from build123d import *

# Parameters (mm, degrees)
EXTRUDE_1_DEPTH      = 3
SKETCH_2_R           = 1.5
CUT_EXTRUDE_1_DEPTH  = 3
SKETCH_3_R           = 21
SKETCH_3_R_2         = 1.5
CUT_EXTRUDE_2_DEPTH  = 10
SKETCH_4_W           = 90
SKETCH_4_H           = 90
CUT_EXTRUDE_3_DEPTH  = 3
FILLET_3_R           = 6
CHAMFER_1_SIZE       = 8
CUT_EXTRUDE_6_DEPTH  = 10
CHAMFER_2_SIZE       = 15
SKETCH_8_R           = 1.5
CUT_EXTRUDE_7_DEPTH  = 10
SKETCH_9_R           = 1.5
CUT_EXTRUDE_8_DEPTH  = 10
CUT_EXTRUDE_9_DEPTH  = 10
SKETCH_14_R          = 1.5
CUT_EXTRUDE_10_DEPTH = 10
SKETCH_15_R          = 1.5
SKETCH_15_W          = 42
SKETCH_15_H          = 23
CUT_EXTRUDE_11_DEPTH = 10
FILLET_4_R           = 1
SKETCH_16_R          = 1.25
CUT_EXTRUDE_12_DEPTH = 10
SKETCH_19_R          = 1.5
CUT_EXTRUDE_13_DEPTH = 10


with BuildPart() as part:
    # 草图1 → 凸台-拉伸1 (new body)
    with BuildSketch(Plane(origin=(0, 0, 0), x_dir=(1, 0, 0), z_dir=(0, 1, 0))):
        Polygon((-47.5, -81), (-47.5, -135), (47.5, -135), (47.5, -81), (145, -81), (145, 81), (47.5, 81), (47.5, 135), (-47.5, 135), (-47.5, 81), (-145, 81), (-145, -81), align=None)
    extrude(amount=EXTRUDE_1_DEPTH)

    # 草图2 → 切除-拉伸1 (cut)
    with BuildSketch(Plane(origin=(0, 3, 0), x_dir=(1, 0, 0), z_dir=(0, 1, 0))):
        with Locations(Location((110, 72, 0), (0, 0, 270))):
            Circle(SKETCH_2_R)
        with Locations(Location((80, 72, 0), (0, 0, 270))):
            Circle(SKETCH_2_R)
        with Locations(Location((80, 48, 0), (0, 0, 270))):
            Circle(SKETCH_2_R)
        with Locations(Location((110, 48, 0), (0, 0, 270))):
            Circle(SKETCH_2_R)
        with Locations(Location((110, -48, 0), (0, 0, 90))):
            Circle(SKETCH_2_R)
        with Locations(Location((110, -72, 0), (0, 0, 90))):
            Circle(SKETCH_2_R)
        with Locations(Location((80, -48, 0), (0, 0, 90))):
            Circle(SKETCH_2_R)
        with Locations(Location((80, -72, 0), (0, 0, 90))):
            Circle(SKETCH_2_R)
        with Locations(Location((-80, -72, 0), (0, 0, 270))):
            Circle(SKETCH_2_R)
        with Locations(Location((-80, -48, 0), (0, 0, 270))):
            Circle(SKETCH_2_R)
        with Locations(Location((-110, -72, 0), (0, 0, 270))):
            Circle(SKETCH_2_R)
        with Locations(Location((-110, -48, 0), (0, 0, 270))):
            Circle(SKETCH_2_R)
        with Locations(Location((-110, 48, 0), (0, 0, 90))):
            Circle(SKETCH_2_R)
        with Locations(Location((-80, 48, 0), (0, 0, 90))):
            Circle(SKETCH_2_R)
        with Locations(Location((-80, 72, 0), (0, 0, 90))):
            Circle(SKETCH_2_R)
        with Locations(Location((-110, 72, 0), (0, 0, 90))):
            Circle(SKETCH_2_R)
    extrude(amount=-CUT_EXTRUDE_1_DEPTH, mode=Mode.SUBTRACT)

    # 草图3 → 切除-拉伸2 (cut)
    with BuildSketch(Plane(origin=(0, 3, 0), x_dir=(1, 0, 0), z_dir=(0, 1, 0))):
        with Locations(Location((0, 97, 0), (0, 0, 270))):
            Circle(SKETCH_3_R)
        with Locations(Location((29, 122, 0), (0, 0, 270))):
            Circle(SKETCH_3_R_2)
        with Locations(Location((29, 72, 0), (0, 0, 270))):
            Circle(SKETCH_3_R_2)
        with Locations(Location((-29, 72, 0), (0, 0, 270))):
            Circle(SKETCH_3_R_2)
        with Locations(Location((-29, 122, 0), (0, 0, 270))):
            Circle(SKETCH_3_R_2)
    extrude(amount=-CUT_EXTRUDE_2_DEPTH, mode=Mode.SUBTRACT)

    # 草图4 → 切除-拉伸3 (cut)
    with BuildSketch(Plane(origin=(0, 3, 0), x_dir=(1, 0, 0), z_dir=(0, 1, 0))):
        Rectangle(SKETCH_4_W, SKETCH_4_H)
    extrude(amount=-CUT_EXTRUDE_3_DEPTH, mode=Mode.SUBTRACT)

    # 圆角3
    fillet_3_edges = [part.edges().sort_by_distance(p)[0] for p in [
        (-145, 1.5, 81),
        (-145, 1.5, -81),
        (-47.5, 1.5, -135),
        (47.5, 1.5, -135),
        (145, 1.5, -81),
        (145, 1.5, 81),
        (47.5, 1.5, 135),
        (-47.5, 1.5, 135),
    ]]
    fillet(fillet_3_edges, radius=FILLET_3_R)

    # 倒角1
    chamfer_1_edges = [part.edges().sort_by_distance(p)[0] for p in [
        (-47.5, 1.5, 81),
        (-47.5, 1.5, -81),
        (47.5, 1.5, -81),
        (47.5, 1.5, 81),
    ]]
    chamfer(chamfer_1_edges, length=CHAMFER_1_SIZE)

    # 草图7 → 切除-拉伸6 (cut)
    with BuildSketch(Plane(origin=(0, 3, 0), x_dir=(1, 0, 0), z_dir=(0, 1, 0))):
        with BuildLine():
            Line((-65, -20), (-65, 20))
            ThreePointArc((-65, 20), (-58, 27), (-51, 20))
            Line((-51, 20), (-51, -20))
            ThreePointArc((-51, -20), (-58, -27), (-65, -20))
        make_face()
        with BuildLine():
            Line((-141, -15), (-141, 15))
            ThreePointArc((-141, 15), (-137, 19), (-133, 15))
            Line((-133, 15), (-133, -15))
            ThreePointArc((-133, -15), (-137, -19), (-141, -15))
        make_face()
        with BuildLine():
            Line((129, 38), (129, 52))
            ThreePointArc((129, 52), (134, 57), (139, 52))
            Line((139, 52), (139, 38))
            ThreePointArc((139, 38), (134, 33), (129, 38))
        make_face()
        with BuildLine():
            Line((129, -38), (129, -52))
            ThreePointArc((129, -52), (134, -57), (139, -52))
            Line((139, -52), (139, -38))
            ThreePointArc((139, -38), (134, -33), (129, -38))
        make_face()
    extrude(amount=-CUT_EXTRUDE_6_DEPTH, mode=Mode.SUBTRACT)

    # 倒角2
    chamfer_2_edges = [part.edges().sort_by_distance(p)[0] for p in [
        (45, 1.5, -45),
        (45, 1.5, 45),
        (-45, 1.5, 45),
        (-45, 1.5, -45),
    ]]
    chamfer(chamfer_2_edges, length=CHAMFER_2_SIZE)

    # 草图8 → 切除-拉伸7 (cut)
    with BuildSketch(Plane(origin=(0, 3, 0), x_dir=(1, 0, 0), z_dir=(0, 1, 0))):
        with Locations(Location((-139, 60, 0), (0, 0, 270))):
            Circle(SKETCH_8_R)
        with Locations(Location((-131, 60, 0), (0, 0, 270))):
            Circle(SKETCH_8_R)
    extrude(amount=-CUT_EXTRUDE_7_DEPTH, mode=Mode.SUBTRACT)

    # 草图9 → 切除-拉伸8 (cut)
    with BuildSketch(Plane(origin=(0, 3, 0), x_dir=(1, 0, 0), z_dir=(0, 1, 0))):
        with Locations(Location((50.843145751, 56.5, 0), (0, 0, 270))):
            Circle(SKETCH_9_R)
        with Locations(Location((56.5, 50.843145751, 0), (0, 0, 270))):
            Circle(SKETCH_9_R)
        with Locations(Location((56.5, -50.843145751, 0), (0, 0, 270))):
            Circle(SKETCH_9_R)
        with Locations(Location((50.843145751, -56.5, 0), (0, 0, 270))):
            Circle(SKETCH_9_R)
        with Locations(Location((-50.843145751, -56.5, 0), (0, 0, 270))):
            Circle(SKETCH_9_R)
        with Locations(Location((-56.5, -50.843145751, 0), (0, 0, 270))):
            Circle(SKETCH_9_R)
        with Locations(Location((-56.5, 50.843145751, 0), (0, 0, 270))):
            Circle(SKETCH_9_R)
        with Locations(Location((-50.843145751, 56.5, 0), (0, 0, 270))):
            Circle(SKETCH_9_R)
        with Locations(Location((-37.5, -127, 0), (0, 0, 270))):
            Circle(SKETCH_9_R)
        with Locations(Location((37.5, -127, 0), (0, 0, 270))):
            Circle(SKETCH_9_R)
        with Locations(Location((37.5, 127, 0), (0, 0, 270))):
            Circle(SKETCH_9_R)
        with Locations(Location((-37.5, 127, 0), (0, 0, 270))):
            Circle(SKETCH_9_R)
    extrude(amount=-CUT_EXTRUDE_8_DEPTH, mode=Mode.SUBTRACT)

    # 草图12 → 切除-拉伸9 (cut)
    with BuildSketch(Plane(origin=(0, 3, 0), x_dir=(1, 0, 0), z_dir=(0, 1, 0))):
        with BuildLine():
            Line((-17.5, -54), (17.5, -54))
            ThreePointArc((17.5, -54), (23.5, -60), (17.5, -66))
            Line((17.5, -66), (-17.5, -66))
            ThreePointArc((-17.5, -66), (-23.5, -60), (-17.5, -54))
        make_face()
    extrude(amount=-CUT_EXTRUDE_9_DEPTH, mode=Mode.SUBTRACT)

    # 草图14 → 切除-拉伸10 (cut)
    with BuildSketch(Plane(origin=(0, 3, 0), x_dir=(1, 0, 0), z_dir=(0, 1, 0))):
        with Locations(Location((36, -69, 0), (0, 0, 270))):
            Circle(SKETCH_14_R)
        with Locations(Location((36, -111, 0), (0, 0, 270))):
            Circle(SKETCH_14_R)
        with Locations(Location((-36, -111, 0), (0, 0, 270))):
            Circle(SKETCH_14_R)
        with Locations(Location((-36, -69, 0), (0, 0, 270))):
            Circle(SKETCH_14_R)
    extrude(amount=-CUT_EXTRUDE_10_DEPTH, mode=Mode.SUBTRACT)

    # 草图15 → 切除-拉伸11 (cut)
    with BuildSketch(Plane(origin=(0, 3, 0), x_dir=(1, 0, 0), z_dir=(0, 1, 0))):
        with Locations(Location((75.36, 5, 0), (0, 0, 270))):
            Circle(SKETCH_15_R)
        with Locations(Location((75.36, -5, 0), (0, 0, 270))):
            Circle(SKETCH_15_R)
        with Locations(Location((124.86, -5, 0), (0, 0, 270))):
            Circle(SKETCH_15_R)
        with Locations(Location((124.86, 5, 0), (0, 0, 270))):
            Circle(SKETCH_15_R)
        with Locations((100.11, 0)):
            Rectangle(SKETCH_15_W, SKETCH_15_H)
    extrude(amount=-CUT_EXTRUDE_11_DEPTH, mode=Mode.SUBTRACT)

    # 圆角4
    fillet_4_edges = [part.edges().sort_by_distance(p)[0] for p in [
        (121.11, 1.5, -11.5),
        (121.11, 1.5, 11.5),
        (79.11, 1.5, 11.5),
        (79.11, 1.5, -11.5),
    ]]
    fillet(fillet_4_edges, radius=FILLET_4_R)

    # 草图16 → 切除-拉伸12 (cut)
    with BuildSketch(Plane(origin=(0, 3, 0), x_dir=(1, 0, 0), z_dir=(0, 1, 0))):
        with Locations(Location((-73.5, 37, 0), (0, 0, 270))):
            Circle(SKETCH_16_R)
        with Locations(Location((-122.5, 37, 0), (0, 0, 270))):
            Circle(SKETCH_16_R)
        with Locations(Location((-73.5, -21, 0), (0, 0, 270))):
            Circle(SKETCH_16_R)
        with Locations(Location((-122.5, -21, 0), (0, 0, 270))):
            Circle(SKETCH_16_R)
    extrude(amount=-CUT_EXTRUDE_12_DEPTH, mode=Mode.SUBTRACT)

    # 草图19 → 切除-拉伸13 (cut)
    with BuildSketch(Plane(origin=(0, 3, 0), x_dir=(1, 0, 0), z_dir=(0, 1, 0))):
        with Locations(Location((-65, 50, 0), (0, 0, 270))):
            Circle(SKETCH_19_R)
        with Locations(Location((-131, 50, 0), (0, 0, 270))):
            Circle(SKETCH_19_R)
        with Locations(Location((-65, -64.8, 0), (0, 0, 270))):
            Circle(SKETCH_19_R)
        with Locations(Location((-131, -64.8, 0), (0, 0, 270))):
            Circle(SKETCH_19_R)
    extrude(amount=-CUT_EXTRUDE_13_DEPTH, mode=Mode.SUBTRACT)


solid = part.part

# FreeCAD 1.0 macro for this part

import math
import FreeCAD as App
import Part
import Sketcher
from FreeCAD import Vector
Q = App.Units.Quantity


def edges_at(feature, points):
    """Names of the edges that pass closest to the given points."""
    edges = feature.Shape.Edges
    near = lambda p: min(range(len(edges)), key=lambda i: edges[i].distToShape(Part.Vertex(*p))[0])
    return sorted({f"Edge{near(p) + 1}" for p in points})

doc = App.newDocument("Part")
params = doc.addObject("Spreadsheet::Sheet", "Params")
for row, (alias, value) in enumerate([
    ("sketch1_width", "95 mm"),
    ("sketch1_height", "54 mm"),
    ("sketch1_height2", "162 mm"),
    ("sketch1_width2", "97.5 mm"),
    ("pad1_length", "3 mm"),
    ("sketch2_diameter", "3 mm"),
    ("pocket1_length", "3 mm"),
    ("sketch3_diameter", "42 mm"),
    ("sketch3_diameter2", "3 mm"),
    ("pocket2_length", "10 mm"),
    ("sketch4_width", "90 mm"),
    ("pocket3_length", "3 mm"),
    ("fillet_radius", "6 mm"),
    ("chamfer_size", "8 mm"),
    ("sketch5_radius", "7 mm"),
    ("sketch5_radius2", "4 mm"),
    ("sketch5_radius3", "5 mm"),
    ("sketch5_height", "40 mm"),
    ("sketch5_height2", "30 mm"),
    ("pocket4_length", "10 mm"),
    ("chamfer2_size", "15 mm"),
    ("sketch6_diameter", "3 mm"),
    ("pocket5_length", "10 mm"),
    ("sketch7_diameter", "3 mm"),
    ("pocket6_length", "10 mm"),
    ("sketch8_radius", "6 mm"),
    ("sketch8_width", "35 mm"),
    ("pocket7_length", "10 mm"),
    ("sketch9_diameter", "3 mm"),
    ("pocket8_length", "10 mm"),
    ("sketch10_diameter", "3 mm"),
    ("sketch10_width", "42 mm"),
    ("sketch10_height", "23 mm"),
    ("pocket9_length", "10 mm"),
    ("fillet2_radius", "1 mm"),
    ("sketch11_diameter", "2.5 mm"),
    ("pocket10_length", "10 mm"),
    ("sketch12_diameter", "3 mm"),
    ("pocket11_length", "10 mm"),
], start=1):
    params.set(f"A{row}", alias)
    params.set(f"B{row}", "=" + value)
    params.setAlias(f"B{row}", alias)

body = doc.addObject("PartDesign::Body", "Body")

sketch1 = doc.addObject("Sketcher::SketchObject", "Sketch")
body.addObject(sketch1)
sketch1.AttachmentSupport = (doc.XZ_Plane, [""])
sketch1.MapMode = "FlatFace"
sketch1.addGeometry([
    Part.LineSegment(Vector(-48, 81, 0), Vector(-48, 135, 0)),
    Part.LineSegment(Vector(-48, 135, 0), Vector(48, 135, 0)),
    Part.LineSegment(Vector(48, 135, 0), Vector(48, 81, 0)),
    Part.LineSegment(Vector(48, 81, 0), Vector(145, 81, 0)),
    Part.LineSegment(Vector(145, 81, 0), Vector(145, -81, 0)),
    Part.LineSegment(Vector(145, -81, 0), Vector(48, -81, 0)),
    Part.LineSegment(Vector(48, -81, 0), Vector(48, -135, 0)),
    Part.LineSegment(Vector(48, -135, 0), Vector(-48, -135, 0)),
    Part.LineSegment(Vector(-48, -135, 0), Vector(-48, -81, 0)),
    Part.LineSegment(Vector(-48, -81, 0), Vector(-145, -81, 0)),
    Part.LineSegment(Vector(-145, -81, 0), Vector(-145, 81, 0)),
    Part.LineSegment(Vector(-145, 81, 0), Vector(-48, 81, 0)),
], False)
sketch1.addConstraint([
    Sketcher.Constraint("Coincident", 0, 2, 1, 1),
    Sketcher.Constraint("Coincident", 1, 2, 2, 1),
    Sketcher.Constraint("Coincident", 2, 2, 3, 1),
    Sketcher.Constraint("Coincident", 3, 2, 4, 1),
    Sketcher.Constraint("Coincident", 4, 2, 5, 1),
    Sketcher.Constraint("Coincident", 5, 2, 6, 1),
    Sketcher.Constraint("Coincident", 6, 2, 7, 1),
    Sketcher.Constraint("Coincident", 7, 2, 8, 1),
    Sketcher.Constraint("Coincident", 8, 2, 9, 1),
    Sketcher.Constraint("Coincident", 9, 2, 10, 1),
    Sketcher.Constraint("Coincident", 10, 2, 11, 1),
    Sketcher.Constraint("Coincident", 11, 2, 0, 1),
    Sketcher.Constraint("Vertical", 0),
    Sketcher.Constraint("Horizontal", 1),
    Sketcher.Constraint("Vertical", 2),
    Sketcher.Constraint("Horizontal", 3),
    Sketcher.Constraint("Vertical", 4),
    Sketcher.Constraint("Horizontal", 5),
    Sketcher.Constraint("Vertical", 6),
    Sketcher.Constraint("Horizontal", 7),
    Sketcher.Constraint("Vertical", 8),
    Sketcher.Constraint("Horizontal", 9),
    Sketcher.Constraint("Vertical", 10),
    Sketcher.Constraint("Horizontal", 11),
    Sketcher.Constraint("Symmetric", 0, 2, 6, 2, -1, 1),
    Sketcher.Constraint("Symmetric", 2, 2, 8, 2, -1, 1),
    Sketcher.Constraint("Symmetric", 4, 2, 10, 2, -1, 1),
    Sketcher.Constraint("Symmetric", 5, 2, 8, 2, -2),
    Sketcher.Constraint("DistanceX", 1, 1, 1, 2, Q("95 mm")),
    Sketcher.Constraint("DistanceY", 0, 1, 0, 2, Q("54 mm")),
    Sketcher.Constraint("DistanceY", 4, 2, 4, 1, Q("162 mm")),
    Sketcher.Constraint("DistanceX", 3, 1, 3, 2, Q("97.5 mm")),
])
sketch1.setExpression("Constraints[28]", "Params.sketch1_width")
sketch1.setExpression("Constraints[29]", "Params.sketch1_height")
sketch1.setExpression("Constraints[30]", "Params.sketch1_height2")
sketch1.setExpression("Constraints[31]", "Params.sketch1_width2")
pad1 = doc.addObject("PartDesign::Pad", "Pad")
body.addObject(pad1)
pad1.Profile = sketch1
pad1.setExpression("Length", "Params.pad1_length")
pad1.Reversed = True

sketch2 = doc.addObject("Sketcher::SketchObject", "Sketch001")
body.addObject(sketch2)
sketch2.AttachmentSupport = (doc.XZ_Plane, [""])
sketch2.MapMode = "FlatFace"
sketch2.AttachmentOffset = App.Placement(Vector(0, 0, -3), App.Rotation())
sketch2.addGeometry([
    Part.Circle(Vector(110, -72, 0), Vector(0, 0, 1), 1.5),
    Part.Circle(Vector(80, -72, 0), Vector(0, 0, 1), 1.5),
    Part.Circle(Vector(80, -48, 0), Vector(0, 0, 1), 1.5),
    Part.Circle(Vector(110, -48, 0), Vector(0, 0, 1), 1.5),
    Part.Circle(Vector(110, 48, 0), Vector(0, 0, 1), 1.5),
    Part.Circle(Vector(110, 72, 0), Vector(0, 0, 1), 1.5),
    Part.Circle(Vector(80, 48, 0), Vector(0, 0, 1), 1.5),
    Part.Circle(Vector(80, 72, 0), Vector(0, 0, 1), 1.5),
    Part.Circle(Vector(-80, 72, 0), Vector(0, 0, 1), 1.5),
    Part.Circle(Vector(-80, 48, 0), Vector(0, 0, 1), 1.5),
    Part.Circle(Vector(-110, 72, 0), Vector(0, 0, 1), 1.5),
    Part.Circle(Vector(-110, 48, 0), Vector(0, 0, 1), 1.5),
    Part.Circle(Vector(-110, -48, 0), Vector(0, 0, 1), 1.5),
    Part.Circle(Vector(-80, -48, 0), Vector(0, 0, 1), 1.5),
    Part.Circle(Vector(-80, -72, 0), Vector(0, 0, 1), 1.5),
    Part.Circle(Vector(-110, -72, 0), Vector(0, 0, 1), 1.5),
], False)
sketch2.addConstraint([
    Sketcher.Constraint("Equal", 0, 1),
    Sketcher.Constraint("Equal", 1, 2),
    Sketcher.Constraint("Equal", 2, 3),
    Sketcher.Constraint("Equal", 3, 4),
    Sketcher.Constraint("Equal", 4, 5),
    Sketcher.Constraint("Equal", 5, 6),
    Sketcher.Constraint("Equal", 6, 7),
    Sketcher.Constraint("Equal", 7, 8),
    Sketcher.Constraint("Equal", 8, 9),
    Sketcher.Constraint("Equal", 9, 10),
    Sketcher.Constraint("Equal", 10, 11),
    Sketcher.Constraint("Equal", 11, 12),
    Sketcher.Constraint("Equal", 12, 13),
    Sketcher.Constraint("Equal", 13, 14),
    Sketcher.Constraint("Equal", 14, 15),
    Sketcher.Constraint("Symmetric", 1, 3, 8, 3, -1, 1),
    Sketcher.Constraint("Symmetric", 2, 3, 9, 3, -1, 1),
    Sketcher.Constraint("Symmetric", 0, 3, 10, 3, -1, 1),
    Sketcher.Constraint("Symmetric", 3, 3, 11, 3, -1, 1),
    Sketcher.Constraint("Symmetric", 4, 3, 12, 3, -1, 1),
    Sketcher.Constraint("Symmetric", 6, 3, 13, 3, -1, 1),
    Sketcher.Constraint("Symmetric", 7, 3, 14, 3, -1, 1),
    Sketcher.Constraint("Symmetric", 5, 3, 15, 3, -1, 1),
    Sketcher.Constraint("Symmetric", 7, 3, 8, 3, -2),
    Sketcher.Constraint("Symmetric", 6, 3, 9, 3, -2),
    Sketcher.Constraint("Symmetric", 5, 3, 10, 3, -2),
    Sketcher.Constraint("Symmetric", 4, 3, 11, 3, -2),
    Sketcher.Constraint("Horizontal", 0, 3, 1, 3),
    Sketcher.Constraint("Horizontal", 2, 3, 3, 3),
    Sketcher.Constraint("Vertical", 1, 3, 2, 3),
    Sketcher.Constraint("Vertical", 0, 3, 3, 3),
    Sketcher.Constraint("Diameter", 0, Q("3 mm")),
    Sketcher.Constraint("DistanceX", -1, 1, 0, 3, Q("110 mm")),
    Sketcher.Constraint("DistanceY", 0, 3, -1, 1, Q("72 mm")),
    Sketcher.Constraint("DistanceX", -1, 1, 1, 3, Q("80 mm")),
    Sketcher.Constraint("DistanceY", 2, 3, -1, 1, Q("48 mm")),
])
sketch2.setExpression("Constraints[31]", "Params.sketch2_diameter")
pocket1 = doc.addObject("PartDesign::Pocket", "Pocket")
body.addObject(pocket1)
pocket1.Profile = sketch2
pocket1.setExpression("Length", "Params.pocket1_length")
pocket1.Reversed = True

sketch3 = doc.addObject("Sketcher::SketchObject", "Sketch002")
body.addObject(sketch3)
sketch3.AttachmentSupport = (doc.XZ_Plane, [""])
sketch3.MapMode = "FlatFace"
sketch3.AttachmentOffset = App.Placement(Vector(0, 0, -3), App.Rotation())
sketch3.addGeometry([
    Part.Circle(Vector(0, -97, 0), Vector(0, 0, 1), 21),
    Part.Circle(Vector(29, -122, 0), Vector(0, 0, 1), 1.5),
    Part.Circle(Vector(29, -72, 0), Vector(0, 0, 1), 1.5),
    Part.Circle(Vector(-29, -72, 0), Vector(0, 0, 1), 1.5),
    Part.Circle(Vector(-29, -122, 0), Vector(0, 0, 1), 1.5),
], False)
sketch3.addConstraint([
    Sketcher.Constraint("Equal", 1, 2),
    Sketcher.Constraint("Equal", 2, 3),
    Sketcher.Constraint("Equal", 3, 4),
    Sketcher.Constraint("Symmetric", 2, 3, 3, 3, -2),
    Sketcher.Constraint("Symmetric", 1, 3, 4, 3, -2),
    Sketcher.Constraint("PointOnObject", 0, 3, -2),
    Sketcher.Constraint("Vertical", 1, 3, 2, 3),
    Sketcher.Constraint("Diameter", 0, Q("42 mm")),
    Sketcher.Constraint("Diameter", 1, Q("3 mm")),
    Sketcher.Constraint("DistanceY", 0, 3, -1, 1, Q("97 mm")),
    Sketcher.Constraint("DistanceX", -1, 1, 1, 3, Q("29 mm")),
    Sketcher.Constraint("DistanceY", 1, 3, -1, 1, Q("122 mm")),
    Sketcher.Constraint("DistanceY", 2, 3, -1, 1, Q("72 mm")),
])
sketch3.setExpression("Constraints[7]", "Params.sketch3_diameter")
sketch3.setExpression("Constraints[8]", "Params.sketch3_diameter2")
pocket2 = doc.addObject("PartDesign::Pocket", "Pocket001")
body.addObject(pocket2)
pocket2.Profile = sketch3
pocket2.setExpression("Length", "Params.pocket2_length")
pocket2.Reversed = True

sketch4 = doc.addObject("Sketcher::SketchObject", "Sketch003")
body.addObject(sketch4)
sketch4.AttachmentSupport = (doc.XZ_Plane, [""])
sketch4.MapMode = "FlatFace"
sketch4.AttachmentOffset = App.Placement(Vector(0, 0, -3), App.Rotation())
sketch4.addGeometry([
    Part.LineSegment(Vector(-45, -45, 0), Vector(-45, 45, 0)),
    Part.LineSegment(Vector(-45, 45, 0), Vector(45, 45, 0)),
    Part.LineSegment(Vector(45, 45, 0), Vector(45, -45, 0)),
    Part.LineSegment(Vector(45, -45, 0), Vector(-45, -45, 0)),
], False)
sketch4.addConstraint([
    Sketcher.Constraint("Coincident", 0, 2, 1, 1),
    Sketcher.Constraint("Coincident", 1, 2, 2, 1),
    Sketcher.Constraint("Coincident", 2, 2, 3, 1),
    Sketcher.Constraint("Coincident", 3, 2, 0, 1),
    Sketcher.Constraint("Vertical", 0),
    Sketcher.Constraint("Horizontal", 1),
    Sketcher.Constraint("Vertical", 2),
    Sketcher.Constraint("Horizontal", 3),
    Sketcher.Constraint("Symmetric", 0, 2, 2, 2, -1, 1),
    Sketcher.Constraint("Equal", 3, 0),
    Sketcher.Constraint("DistanceX", 1, 1, 1, 2, Q("90 mm")),
])
sketch4.setExpression("Constraints[10]", "Params.sketch4_width")
pocket3 = doc.addObject("PartDesign::Pocket", "Pocket002")
body.addObject(pocket3)
pocket3.Profile = sketch4
pocket3.setExpression("Length", "Params.pocket3_length")
pocket3.Reversed = True
doc.recompute()

fillet = doc.addObject("PartDesign::Fillet", "Fillet")
body.addObject(fillet)
fillet.Base = (pocket3, edges_at(pocket3, [
    (-145, 1.5, 81),
    (-145, 1.5, -81),
    (-47.5, 1.5, -135),
    (47.5, 1.5, -135),
    (145, 1.5, -81),
    (145, 1.5, 81),
    (47.5, 1.5, 135),
    (-47.5, 1.5, 135),
]))
fillet.setExpression("Radius", "Params.fillet_radius")
doc.recompute()

chamfer = doc.addObject("PartDesign::Chamfer", "Chamfer")
body.addObject(chamfer)
chamfer.Base = (fillet, edges_at(fillet, [
    (-47.5, 1.5, 81),
    (-47.5, 1.5, -81),
    (47.5, 1.5, -81),
    (47.5, 1.5, 81),
]))
chamfer.setExpression("Size", "Params.chamfer_size")

sketch5 = doc.addObject("Sketcher::SketchObject", "Sketch004")
body.addObject(sketch5)
sketch5.AttachmentSupport = (doc.XZ_Plane, [""])
sketch5.MapMode = "FlatFace"
sketch5.AttachmentOffset = App.Placement(Vector(0, 0, -3), App.Rotation())
sketch5.addGeometry([
    Part.LineSegment(Vector(-65, -20, 0), Vector(-65, 20, 0)),
    Part.ArcOfCircle(Part.Circle(Vector(-58, 20, 0), Vector(0, 0, 1), 7), math.radians(0), math.radians(180)),
    Part.LineSegment(Vector(-51, 20, 0), Vector(-51, -20, 0)),
    Part.ArcOfCircle(Part.Circle(Vector(-58, -20, 0), Vector(0, 0, 1), 7), math.radians(180), math.radians(360)),
    Part.LineSegment(Vector(-141, -15, 0), Vector(-141, 15, 0)),
    Part.ArcOfCircle(Part.Circle(Vector(-137, 15, 0), Vector(0, 0, 1), 4), math.radians(0), math.radians(180)),
    Part.LineSegment(Vector(-133, 15, 0), Vector(-133, -15, 0)),
    Part.ArcOfCircle(Part.Circle(Vector(-137, -15, 0), Vector(0, 0, 1), 4), math.radians(180), math.radians(360)),
    Part.LineSegment(Vector(129, -52, 0), Vector(129, -38, 0)),
    Part.ArcOfCircle(Part.Circle(Vector(134, -38, 0), Vector(0, 0, 1), 5), math.radians(0), math.radians(180)),
    Part.LineSegment(Vector(139, -38, 0), Vector(139, -52, 0)),
    Part.ArcOfCircle(Part.Circle(Vector(134, -52, 0), Vector(0, 0, 1), 5), math.radians(180), math.radians(360)),
    Part.LineSegment(Vector(129, 38, 0), Vector(129, 52, 0)),
    Part.ArcOfCircle(Part.Circle(Vector(134, 52, 0), Vector(0, 0, 1), 5), math.radians(0), math.radians(180)),
    Part.LineSegment(Vector(139, 52, 0), Vector(139, 38, 0)),
    Part.ArcOfCircle(Part.Circle(Vector(134, 38, 0), Vector(0, 0, 1), 5), math.radians(180), math.radians(360)),
], False)
sketch5.addConstraint([
    Sketcher.Constraint("Tangent", 0, 2, 1, 2),
    Sketcher.Constraint("Tangent", 1, 1, 2, 1),
    Sketcher.Constraint("Tangent", 2, 2, 3, 2),
    Sketcher.Constraint("Tangent", 3, 1, 0, 1),
    Sketcher.Constraint("Tangent", 4, 2, 5, 2),
    Sketcher.Constraint("Tangent", 5, 1, 6, 1),
    Sketcher.Constraint("Tangent", 6, 2, 7, 2),
    Sketcher.Constraint("Tangent", 7, 1, 4, 1),
    Sketcher.Constraint("Tangent", 8, 2, 9, 2),
    Sketcher.Constraint("Tangent", 9, 1, 10, 1),
    Sketcher.Constraint("Tangent", 10, 2, 11, 2),
    Sketcher.Constraint("Tangent", 11, 1, 8, 1),
    Sketcher.Constraint("Tangent", 12, 2, 13, 2),
    Sketcher.Constraint("Tangent", 13, 1, 14, 1),
    Sketcher.Constraint("Tangent", 14, 2, 15, 2),
    Sketcher.Constraint("Tangent", 15, 1, 12, 1),
    Sketcher.Constraint("Vertical", 0),
    Sketcher.Constraint("Vertical", 2),
    Sketcher.Constraint("Vertical", 4),
    Sketcher.Constraint("Vertical", 6),
    Sketcher.Constraint("Vertical", 8),
    Sketcher.Constraint("Vertical", 10),
    Sketcher.Constraint("Vertical", 12),
    Sketcher.Constraint("Vertical", 14),
    Sketcher.Constraint("Equal", 11, 13),
    Sketcher.Constraint("Symmetric", 11, 3, 13, 3, -1),
    Sketcher.Constraint("Equal", 10, 12),
    Sketcher.Constraint("Radius", 1, Q("7 mm")),
    Sketcher.Constraint("Radius", 5, Q("4 mm")),
    Sketcher.Constraint("Radius", 9, Q("5 mm")),
    Sketcher.Constraint("DistanceY", 0, 1, 0, 2, Q("40 mm")),
    Sketcher.Constraint("DistanceY", 4, 1, 4, 2, Q("30 mm")),
    Sketcher.Constraint("DistanceY", 8, 1, 8, 2, Q("14 mm")),
    Sketcher.Constraint("DistanceX", 1, 3, -1, 1, Q("58 mm")),
    Sketcher.Constraint("DistanceY", -1, 1, 1, 3, Q("20 mm")),
    Sketcher.Constraint("DistanceX", 5, 3, -1, 1, Q("137 mm")),
    Sketcher.Constraint("DistanceY", -1, 1, 5, 3, Q("15 mm")),
    Sketcher.Constraint("DistanceX", -1, 1, 9, 3, Q("134 mm")),
    Sketcher.Constraint("DistanceY", 9, 3, -1, 1, Q("38 mm")),
])
sketch5.setExpression("Constraints[27]", "Params.sketch5_radius")
sketch5.setExpression("Constraints[28]", "Params.sketch5_radius2")
sketch5.setExpression("Constraints[29]", "Params.sketch5_radius3")
sketch5.setExpression("Constraints[30]", "Params.sketch5_height")
sketch5.setExpression("Constraints[31]", "Params.sketch5_height2")
pocket4 = doc.addObject("PartDesign::Pocket", "Pocket003")
body.addObject(pocket4)
pocket4.Profile = sketch5
pocket4.setExpression("Length", "Params.pocket4_length")
pocket4.Reversed = True
doc.recompute()

chamfer2 = doc.addObject("PartDesign::Chamfer", "Chamfer001")
body.addObject(chamfer2)
chamfer2.Base = (pocket4, edges_at(pocket4, [
    (45, 1.5, -45),
    (45, 1.5, 45),
    (-45, 1.5, 45),
    (-45, 1.5, -45),
]))
chamfer2.setExpression("Size", "Params.chamfer2_size")

sketch6 = doc.addObject("Sketcher::SketchObject", "Sketch005")
body.addObject(sketch6)
sketch6.AttachmentSupport = (doc.XZ_Plane, [""])
sketch6.MapMode = "FlatFace"
sketch6.AttachmentOffset = App.Placement(Vector(0, 0, -3), App.Rotation())
sketch6.addGeometry([
    Part.Circle(Vector(-139, -60, 0), Vector(0, 0, 1), 1.5),
    Part.Circle(Vector(-131, -60, 0), Vector(0, 0, 1), 1.5),
], False)
sketch6.addConstraint([
    Sketcher.Constraint("Equal", 0, 1),
    Sketcher.Constraint("Horizontal", 0, 3, 1, 3),
    Sketcher.Constraint("Diameter", 0, Q("3 mm")),
    Sketcher.Constraint("DistanceX", 0, 3, -1, 1, Q("139 mm")),
    Sketcher.Constraint("DistanceY", 0, 3, -1, 1, Q("60 mm")),
    Sketcher.Constraint("DistanceX", 1, 3, -1, 1, Q("131 mm")),
])
sketch6.setExpression("Constraints[2]", "Params.sketch6_diameter")
pocket5 = doc.addObject("PartDesign::Pocket", "Pocket004")
body.addObject(pocket5)
pocket5.Profile = sketch6
pocket5.setExpression("Length", "Params.pocket5_length")
pocket5.Reversed = True

sketch7 = doc.addObject("Sketcher::SketchObject", "Sketch006")
body.addObject(sketch7)
sketch7.AttachmentSupport = (doc.XZ_Plane, [""])
sketch7.MapMode = "FlatFace"
sketch7.AttachmentOffset = App.Placement(Vector(0, 0, -3), App.Rotation())
sketch7.addGeometry([
    Part.Circle(Vector(50.8, -56.5, 0), Vector(0, 0, 1), 1.5),
    Part.Circle(Vector(56.5, -50.8, 0), Vector(0, 0, 1), 1.5),
    Part.Circle(Vector(56.5, 50.8, 0), Vector(0, 0, 1), 1.5),
    Part.Circle(Vector(50.8, 56.5, 0), Vector(0, 0, 1), 1.5),
    Part.Circle(Vector(-50.8, 56.5, 0), Vector(0, 0, 1), 1.5),
    Part.Circle(Vector(-56.5, 50.8, 0), Vector(0, 0, 1), 1.5),
    Part.Circle(Vector(-56.5, -50.8, 0), Vector(0, 0, 1), 1.5),
    Part.Circle(Vector(-50.8, -56.5, 0), Vector(0, 0, 1), 1.5),
    Part.Circle(Vector(-37.5, 127, 0), Vector(0, 0, 1), 1.5),
    Part.Circle(Vector(37.5, 127, 0), Vector(0, 0, 1), 1.5),
    Part.Circle(Vector(37.5, -127, 0), Vector(0, 0, 1), 1.5),
    Part.Circle(Vector(-37.5, -127, 0), Vector(0, 0, 1), 1.5),
], False)
sketch7.addConstraint([
    Sketcher.Constraint("Equal", 0, 1),
    Sketcher.Constraint("Equal", 1, 2),
    Sketcher.Constraint("Equal", 2, 3),
    Sketcher.Constraint("Equal", 3, 4),
    Sketcher.Constraint("Equal", 4, 5),
    Sketcher.Constraint("Equal", 5, 6),
    Sketcher.Constraint("Equal", 6, 7),
    Sketcher.Constraint("Equal", 7, 8),
    Sketcher.Constraint("Equal", 8, 9),
    Sketcher.Constraint("Equal", 9, 10),
    Sketcher.Constraint("Equal", 10, 11),
    Sketcher.Constraint("Symmetric", 0, 3, 4, 3, -1, 1),
    Sketcher.Constraint("Symmetric", 1, 3, 5, 3, -1, 1),
    Sketcher.Constraint("Symmetric", 2, 3, 6, 3, -1, 1),
    Sketcher.Constraint("Symmetric", 3, 3, 7, 3, -1, 1),
    Sketcher.Constraint("Symmetric", 8, 3, 10, 3, -1, 1),
    Sketcher.Constraint("Symmetric", 9, 3, 11, 3, -1, 1),
    Sketcher.Constraint("Symmetric", 3, 3, 4, 3, -2),
    Sketcher.Constraint("Symmetric", 2, 3, 5, 3, -2),
    Sketcher.Constraint("Symmetric", 8, 3, 9, 3, -2),
    Sketcher.Constraint("Diameter", 0, Q("3 mm")),
    Sketcher.Constraint("DistanceY", -1, 1, 8, 3, Q("127 mm")),
    Sketcher.Constraint("DistanceY", 0, 3, 3, 3, Q("113 mm")),
    Sketcher.Constraint("DistanceX", 5, 3, 2, 3, Q("113 mm")),
    Sketcher.Constraint("DistanceX", 5, 3, 8, 3, Q("19 mm")),
    Sketcher.Constraint("DistanceY", 1, 3, 2, 3, Q("101.686292 mm")),
    Sketcher.Constraint("DistanceX", 4, 3, 3, 3, Q("101.686292 mm")),
])
sketch7.setExpression("Constraints[20]", "Params.sketch7_diameter")
pocket6 = doc.addObject("PartDesign::Pocket", "Pocket005")
body.addObject(pocket6)
pocket6.Profile = sketch7
pocket6.setExpression("Length", "Params.pocket6_length")
pocket6.Reversed = True

sketch8 = doc.addObject("Sketcher::SketchObject", "Sketch007")
body.addObject(sketch8)
sketch8.AttachmentSupport = (doc.XZ_Plane, [""])
sketch8.MapMode = "FlatFace"
sketch8.AttachmentOffset = App.Placement(Vector(0, 0, -3), App.Rotation())
sketch8.addGeometry([
    Part.LineSegment(Vector(18, 54, 0), Vector(-18, 54, 0)),
    Part.ArcOfCircle(Part.Circle(Vector(-18, 60, 0), Vector(0, 0, 1), 6), math.radians(90), math.radians(270)),
    Part.LineSegment(Vector(-18, 66, 0), Vector(18, 66, 0)),
    Part.ArcOfCircle(Part.Circle(Vector(18, 60, 0), Vector(0, 0, 1), 6), math.radians(-90), math.radians(90)),
], False)
sketch8.addConstraint([
    Sketcher.Constraint("Tangent", 0, 2, 1, 2),
    Sketcher.Constraint("Tangent", 1, 1, 2, 1),
    Sketcher.Constraint("Tangent", 2, 2, 3, 2),
    Sketcher.Constraint("Tangent", 3, 1, 0, 1),
    Sketcher.Constraint("Horizontal", 0),
    Sketcher.Constraint("Horizontal", 2),
    Sketcher.Constraint("Radius", 1, Q("6 mm")),
    Sketcher.Constraint("DistanceX", 0, 2, 0, 1, Q("35 mm")),
    Sketcher.Constraint("DistanceY", -1, 1, 1, 3, Q("60 mm")),
    Sketcher.Constraint("DistanceX", 1, 3, -1, 1, Q("17.5 mm")),
])
sketch8.setExpression("Constraints[6]", "Params.sketch8_radius")
sketch8.setExpression("Constraints[7]", "Params.sketch8_width")
pocket7 = doc.addObject("PartDesign::Pocket", "Pocket006")
body.addObject(pocket7)
pocket7.Profile = sketch8
pocket7.setExpression("Length", "Params.pocket7_length")
pocket7.Reversed = True

sketch9 = doc.addObject("Sketcher::SketchObject", "Sketch008")
body.addObject(sketch9)
sketch9.AttachmentSupport = (doc.XZ_Plane, [""])
sketch9.MapMode = "FlatFace"
sketch9.AttachmentOffset = App.Placement(Vector(0, 0, -3), App.Rotation())
sketch9.addGeometry([
    Part.Circle(Vector(36, 69, 0), Vector(0, 0, 1), 1.5),
    Part.Circle(Vector(36, 111, 0), Vector(0, 0, 1), 1.5),
    Part.Circle(Vector(-36, 111, 0), Vector(0, 0, 1), 1.5),
    Part.Circle(Vector(-36, 69, 0), Vector(0, 0, 1), 1.5),
], False)
sketch9.addConstraint([
    Sketcher.Constraint("Equal", 0, 1),
    Sketcher.Constraint("Equal", 1, 2),
    Sketcher.Constraint("Equal", 2, 3),
    Sketcher.Constraint("Symmetric", 1, 3, 2, 3, -2),
    Sketcher.Constraint("Symmetric", 0, 3, 3, 3, -2),
    Sketcher.Constraint("Vertical", 0, 3, 1, 3),
    Sketcher.Constraint("Diameter", 0, Q("3 mm")),
    Sketcher.Constraint("DistanceX", -1, 1, 0, 3, Q("36 mm")),
    Sketcher.Constraint("DistanceY", -1, 1, 0, 3, Q("69 mm")),
    Sketcher.Constraint("DistanceY", -1, 1, 1, 3, Q("111 mm")),
])
sketch9.setExpression("Constraints[6]", "Params.sketch9_diameter")
pocket8 = doc.addObject("PartDesign::Pocket", "Pocket007")
body.addObject(pocket8)
pocket8.Profile = sketch9
pocket8.setExpression("Length", "Params.pocket8_length")
pocket8.Reversed = True

sketch10 = doc.addObject("Sketcher::SketchObject", "Sketch009")
body.addObject(sketch10)
sketch10.AttachmentSupport = (doc.XZ_Plane, [""])
sketch10.MapMode = "FlatFace"
sketch10.AttachmentOffset = App.Placement(Vector(0, 0, -3), App.Rotation())
sketch10.addGeometry([
    Part.Circle(Vector(75.4, -5, 0), Vector(0, 0, 1), 1.5),
    Part.Circle(Vector(75.4, 5, 0), Vector(0, 0, 1), 1.5),
    Part.Circle(Vector(124.9, 5, 0), Vector(0, 0, 1), 1.5),
    Part.Circle(Vector(124.9, -5, 0), Vector(0, 0, 1), 1.5),
    Part.LineSegment(Vector(79.1, -11.5, 0), Vector(79.1, 11.5, 0)),
    Part.LineSegment(Vector(79.1, 11.5, 0), Vector(121.1, 11.5, 0)),
    Part.LineSegment(Vector(121.1, 11.5, 0), Vector(121.1, -11.5, 0)),
    Part.LineSegment(Vector(121.1, -11.5, 0), Vector(79.1, -11.5, 0)),
], False)
sketch10.addConstraint([
    Sketcher.Constraint("Coincident", 4, 2, 5, 1),
    Sketcher.Constraint("Coincident", 5, 2, 6, 1),
    Sketcher.Constraint("Coincident", 6, 2, 7, 1),
    Sketcher.Constraint("Coincident", 7, 2, 4, 1),
    Sketcher.Constraint("Vertical", 4),
    Sketcher.Constraint("Horizontal", 5),
    Sketcher.Constraint("Vertical", 6),
    Sketcher.Constraint("Horizontal", 7),
    Sketcher.Constraint("Equal", 0, 1),
    Sketcher.Constraint("Equal", 1, 2),
    Sketcher.Constraint("Equal", 2, 3),
    Sketcher.Constraint("Symmetric", 0, 3, 1, 3, -1),
    Sketcher.Constraint("Symmetric", 2, 3, 3, 3, -1),
    Sketcher.Constraint("Horizontal", 1, 3, 2, 3),
    Sketcher.Constraint("Diameter", 0, Q("3 mm")),
    Sketcher.Constraint("DistanceX", 5, 1, 5, 2, Q("42 mm")),
    Sketcher.Constraint("DistanceY", 4, 1, 4, 2, Q("23 mm")),
    Sketcher.Constraint("DistanceY", 0, 3, -1, 1, Q("5 mm")),
    Sketcher.Constraint("DistanceY", -1, 1, 4, 2, Q("11.5 mm")),
    Sketcher.Constraint("DistanceX", 1, 3, 2, 3, Q("49.5 mm")),
    Sketcher.Constraint("DistanceX", -1, 1, 0, 3, Q("75.36 mm")),
    Sketcher.Constraint("DistanceX", -1, 1, 4, 2, Q("79.11 mm")),
])
sketch10.setExpression("Constraints[14]", "Params.sketch10_diameter")
sketch10.setExpression("Constraints[15]", "Params.sketch10_width")
sketch10.setExpression("Constraints[16]", "Params.sketch10_height")
pocket9 = doc.addObject("PartDesign::Pocket", "Pocket008")
body.addObject(pocket9)
pocket9.Profile = sketch10
pocket9.setExpression("Length", "Params.pocket9_length")
pocket9.Reversed = True
doc.recompute()

fillet2 = doc.addObject("PartDesign::Fillet", "Fillet001")
body.addObject(fillet2)
fillet2.Base = (pocket9, edges_at(pocket9, [
    (121.11, 1.5, -11.5),
    (121.11, 1.5, 11.5),
    (79.11, 1.5, 11.5),
    (79.11, 1.5, -11.5),
]))
fillet2.setExpression("Radius", "Params.fillet2_radius")

sketch11 = doc.addObject("Sketcher::SketchObject", "Sketch010")
body.addObject(sketch11)
sketch11.AttachmentSupport = (doc.XZ_Plane, [""])
sketch11.MapMode = "FlatFace"
sketch11.AttachmentOffset = App.Placement(Vector(0, 0, -3), App.Rotation())
sketch11.addGeometry([
    Part.Circle(Vector(-73.5, -37, 0), Vector(0, 0, 1), 1.2),
    Part.Circle(Vector(-122.5, -37, 0), Vector(0, 0, 1), 1.2),
    Part.Circle(Vector(-73.5, 21, 0), Vector(0, 0, 1), 1.2),
    Part.Circle(Vector(-122.5, 21, 0), Vector(0, 0, 1), 1.2),
], False)
sketch11.addConstraint([
    Sketcher.Constraint("Equal", 0, 1),
    Sketcher.Constraint("Equal", 1, 2),
    Sketcher.Constraint("Equal", 2, 3),
    Sketcher.Constraint("Horizontal", 0, 3, 1, 3),
    Sketcher.Constraint("Horizontal", 2, 3, 3, 3),
    Sketcher.Constraint("Vertical", 0, 3, 2, 3),
    Sketcher.Constraint("Vertical", 1, 3, 3, 3),
    Sketcher.Constraint("Diameter", 0, Q("2.5 mm")),
    Sketcher.Constraint("DistanceY", 0, 3, -1, 1, Q("37 mm")),
    Sketcher.Constraint("DistanceY", -1, 1, 2, 3, Q("21 mm")),
    Sketcher.Constraint("DistanceX", 1, 3, 0, 3, Q("49 mm")),
    Sketcher.Constraint("DistanceX", 0, 3, -1, 1, Q("73.5 mm")),
])
sketch11.setExpression("Constraints[7]", "Params.sketch11_diameter")
pocket10 = doc.addObject("PartDesign::Pocket", "Pocket009")
body.addObject(pocket10)
pocket10.Profile = sketch11
pocket10.setExpression("Length", "Params.pocket10_length")
pocket10.Reversed = True

sketch12 = doc.addObject("Sketcher::SketchObject", "Sketch011")
body.addObject(sketch12)
sketch12.AttachmentSupport = (doc.XZ_Plane, [""])
sketch12.MapMode = "FlatFace"
sketch12.AttachmentOffset = App.Placement(Vector(0, 0, -3), App.Rotation())
sketch12.addGeometry([
    Part.Circle(Vector(-65, -50, 0), Vector(0, 0, 1), 1.5),
    Part.Circle(Vector(-131, -50, 0), Vector(0, 0, 1), 1.5),
    Part.Circle(Vector(-65, 64.8, 0), Vector(0, 0, 1), 1.5),
    Part.Circle(Vector(-131, 64.8, 0), Vector(0, 0, 1), 1.5),
], False)
sketch12.addConstraint([
    Sketcher.Constraint("Equal", 0, 1),
    Sketcher.Constraint("Equal", 1, 2),
    Sketcher.Constraint("Equal", 2, 3),
    Sketcher.Constraint("Horizontal", 0, 3, 1, 3),
    Sketcher.Constraint("Horizontal", 2, 3, 3, 3),
    Sketcher.Constraint("Vertical", 0, 3, 2, 3),
    Sketcher.Constraint("Vertical", 1, 3, 3, 3),
    Sketcher.Constraint("Diameter", 0, Q("3 mm")),
    Sketcher.Constraint("DistanceX", 0, 3, -1, 1, Q("65 mm")),
    Sketcher.Constraint("DistanceY", 0, 3, -1, 1, Q("50 mm")),
    Sketcher.Constraint("DistanceX", 1, 3, -1, 1, Q("131 mm")),
    Sketcher.Constraint("DistanceY", -1, 1, 2, 3, Q("64.8 mm")),
])
sketch12.setExpression("Constraints[7]", "Params.sketch12_diameter")
pocket11 = doc.addObject("PartDesign::Pocket", "Pocket010")
body.addObject(pocket11)
pocket11.Profile = sketch12
pocket11.setExpression("Length", "Params.pocket11_length")
pocket11.Reversed = True

doc.recompute()
